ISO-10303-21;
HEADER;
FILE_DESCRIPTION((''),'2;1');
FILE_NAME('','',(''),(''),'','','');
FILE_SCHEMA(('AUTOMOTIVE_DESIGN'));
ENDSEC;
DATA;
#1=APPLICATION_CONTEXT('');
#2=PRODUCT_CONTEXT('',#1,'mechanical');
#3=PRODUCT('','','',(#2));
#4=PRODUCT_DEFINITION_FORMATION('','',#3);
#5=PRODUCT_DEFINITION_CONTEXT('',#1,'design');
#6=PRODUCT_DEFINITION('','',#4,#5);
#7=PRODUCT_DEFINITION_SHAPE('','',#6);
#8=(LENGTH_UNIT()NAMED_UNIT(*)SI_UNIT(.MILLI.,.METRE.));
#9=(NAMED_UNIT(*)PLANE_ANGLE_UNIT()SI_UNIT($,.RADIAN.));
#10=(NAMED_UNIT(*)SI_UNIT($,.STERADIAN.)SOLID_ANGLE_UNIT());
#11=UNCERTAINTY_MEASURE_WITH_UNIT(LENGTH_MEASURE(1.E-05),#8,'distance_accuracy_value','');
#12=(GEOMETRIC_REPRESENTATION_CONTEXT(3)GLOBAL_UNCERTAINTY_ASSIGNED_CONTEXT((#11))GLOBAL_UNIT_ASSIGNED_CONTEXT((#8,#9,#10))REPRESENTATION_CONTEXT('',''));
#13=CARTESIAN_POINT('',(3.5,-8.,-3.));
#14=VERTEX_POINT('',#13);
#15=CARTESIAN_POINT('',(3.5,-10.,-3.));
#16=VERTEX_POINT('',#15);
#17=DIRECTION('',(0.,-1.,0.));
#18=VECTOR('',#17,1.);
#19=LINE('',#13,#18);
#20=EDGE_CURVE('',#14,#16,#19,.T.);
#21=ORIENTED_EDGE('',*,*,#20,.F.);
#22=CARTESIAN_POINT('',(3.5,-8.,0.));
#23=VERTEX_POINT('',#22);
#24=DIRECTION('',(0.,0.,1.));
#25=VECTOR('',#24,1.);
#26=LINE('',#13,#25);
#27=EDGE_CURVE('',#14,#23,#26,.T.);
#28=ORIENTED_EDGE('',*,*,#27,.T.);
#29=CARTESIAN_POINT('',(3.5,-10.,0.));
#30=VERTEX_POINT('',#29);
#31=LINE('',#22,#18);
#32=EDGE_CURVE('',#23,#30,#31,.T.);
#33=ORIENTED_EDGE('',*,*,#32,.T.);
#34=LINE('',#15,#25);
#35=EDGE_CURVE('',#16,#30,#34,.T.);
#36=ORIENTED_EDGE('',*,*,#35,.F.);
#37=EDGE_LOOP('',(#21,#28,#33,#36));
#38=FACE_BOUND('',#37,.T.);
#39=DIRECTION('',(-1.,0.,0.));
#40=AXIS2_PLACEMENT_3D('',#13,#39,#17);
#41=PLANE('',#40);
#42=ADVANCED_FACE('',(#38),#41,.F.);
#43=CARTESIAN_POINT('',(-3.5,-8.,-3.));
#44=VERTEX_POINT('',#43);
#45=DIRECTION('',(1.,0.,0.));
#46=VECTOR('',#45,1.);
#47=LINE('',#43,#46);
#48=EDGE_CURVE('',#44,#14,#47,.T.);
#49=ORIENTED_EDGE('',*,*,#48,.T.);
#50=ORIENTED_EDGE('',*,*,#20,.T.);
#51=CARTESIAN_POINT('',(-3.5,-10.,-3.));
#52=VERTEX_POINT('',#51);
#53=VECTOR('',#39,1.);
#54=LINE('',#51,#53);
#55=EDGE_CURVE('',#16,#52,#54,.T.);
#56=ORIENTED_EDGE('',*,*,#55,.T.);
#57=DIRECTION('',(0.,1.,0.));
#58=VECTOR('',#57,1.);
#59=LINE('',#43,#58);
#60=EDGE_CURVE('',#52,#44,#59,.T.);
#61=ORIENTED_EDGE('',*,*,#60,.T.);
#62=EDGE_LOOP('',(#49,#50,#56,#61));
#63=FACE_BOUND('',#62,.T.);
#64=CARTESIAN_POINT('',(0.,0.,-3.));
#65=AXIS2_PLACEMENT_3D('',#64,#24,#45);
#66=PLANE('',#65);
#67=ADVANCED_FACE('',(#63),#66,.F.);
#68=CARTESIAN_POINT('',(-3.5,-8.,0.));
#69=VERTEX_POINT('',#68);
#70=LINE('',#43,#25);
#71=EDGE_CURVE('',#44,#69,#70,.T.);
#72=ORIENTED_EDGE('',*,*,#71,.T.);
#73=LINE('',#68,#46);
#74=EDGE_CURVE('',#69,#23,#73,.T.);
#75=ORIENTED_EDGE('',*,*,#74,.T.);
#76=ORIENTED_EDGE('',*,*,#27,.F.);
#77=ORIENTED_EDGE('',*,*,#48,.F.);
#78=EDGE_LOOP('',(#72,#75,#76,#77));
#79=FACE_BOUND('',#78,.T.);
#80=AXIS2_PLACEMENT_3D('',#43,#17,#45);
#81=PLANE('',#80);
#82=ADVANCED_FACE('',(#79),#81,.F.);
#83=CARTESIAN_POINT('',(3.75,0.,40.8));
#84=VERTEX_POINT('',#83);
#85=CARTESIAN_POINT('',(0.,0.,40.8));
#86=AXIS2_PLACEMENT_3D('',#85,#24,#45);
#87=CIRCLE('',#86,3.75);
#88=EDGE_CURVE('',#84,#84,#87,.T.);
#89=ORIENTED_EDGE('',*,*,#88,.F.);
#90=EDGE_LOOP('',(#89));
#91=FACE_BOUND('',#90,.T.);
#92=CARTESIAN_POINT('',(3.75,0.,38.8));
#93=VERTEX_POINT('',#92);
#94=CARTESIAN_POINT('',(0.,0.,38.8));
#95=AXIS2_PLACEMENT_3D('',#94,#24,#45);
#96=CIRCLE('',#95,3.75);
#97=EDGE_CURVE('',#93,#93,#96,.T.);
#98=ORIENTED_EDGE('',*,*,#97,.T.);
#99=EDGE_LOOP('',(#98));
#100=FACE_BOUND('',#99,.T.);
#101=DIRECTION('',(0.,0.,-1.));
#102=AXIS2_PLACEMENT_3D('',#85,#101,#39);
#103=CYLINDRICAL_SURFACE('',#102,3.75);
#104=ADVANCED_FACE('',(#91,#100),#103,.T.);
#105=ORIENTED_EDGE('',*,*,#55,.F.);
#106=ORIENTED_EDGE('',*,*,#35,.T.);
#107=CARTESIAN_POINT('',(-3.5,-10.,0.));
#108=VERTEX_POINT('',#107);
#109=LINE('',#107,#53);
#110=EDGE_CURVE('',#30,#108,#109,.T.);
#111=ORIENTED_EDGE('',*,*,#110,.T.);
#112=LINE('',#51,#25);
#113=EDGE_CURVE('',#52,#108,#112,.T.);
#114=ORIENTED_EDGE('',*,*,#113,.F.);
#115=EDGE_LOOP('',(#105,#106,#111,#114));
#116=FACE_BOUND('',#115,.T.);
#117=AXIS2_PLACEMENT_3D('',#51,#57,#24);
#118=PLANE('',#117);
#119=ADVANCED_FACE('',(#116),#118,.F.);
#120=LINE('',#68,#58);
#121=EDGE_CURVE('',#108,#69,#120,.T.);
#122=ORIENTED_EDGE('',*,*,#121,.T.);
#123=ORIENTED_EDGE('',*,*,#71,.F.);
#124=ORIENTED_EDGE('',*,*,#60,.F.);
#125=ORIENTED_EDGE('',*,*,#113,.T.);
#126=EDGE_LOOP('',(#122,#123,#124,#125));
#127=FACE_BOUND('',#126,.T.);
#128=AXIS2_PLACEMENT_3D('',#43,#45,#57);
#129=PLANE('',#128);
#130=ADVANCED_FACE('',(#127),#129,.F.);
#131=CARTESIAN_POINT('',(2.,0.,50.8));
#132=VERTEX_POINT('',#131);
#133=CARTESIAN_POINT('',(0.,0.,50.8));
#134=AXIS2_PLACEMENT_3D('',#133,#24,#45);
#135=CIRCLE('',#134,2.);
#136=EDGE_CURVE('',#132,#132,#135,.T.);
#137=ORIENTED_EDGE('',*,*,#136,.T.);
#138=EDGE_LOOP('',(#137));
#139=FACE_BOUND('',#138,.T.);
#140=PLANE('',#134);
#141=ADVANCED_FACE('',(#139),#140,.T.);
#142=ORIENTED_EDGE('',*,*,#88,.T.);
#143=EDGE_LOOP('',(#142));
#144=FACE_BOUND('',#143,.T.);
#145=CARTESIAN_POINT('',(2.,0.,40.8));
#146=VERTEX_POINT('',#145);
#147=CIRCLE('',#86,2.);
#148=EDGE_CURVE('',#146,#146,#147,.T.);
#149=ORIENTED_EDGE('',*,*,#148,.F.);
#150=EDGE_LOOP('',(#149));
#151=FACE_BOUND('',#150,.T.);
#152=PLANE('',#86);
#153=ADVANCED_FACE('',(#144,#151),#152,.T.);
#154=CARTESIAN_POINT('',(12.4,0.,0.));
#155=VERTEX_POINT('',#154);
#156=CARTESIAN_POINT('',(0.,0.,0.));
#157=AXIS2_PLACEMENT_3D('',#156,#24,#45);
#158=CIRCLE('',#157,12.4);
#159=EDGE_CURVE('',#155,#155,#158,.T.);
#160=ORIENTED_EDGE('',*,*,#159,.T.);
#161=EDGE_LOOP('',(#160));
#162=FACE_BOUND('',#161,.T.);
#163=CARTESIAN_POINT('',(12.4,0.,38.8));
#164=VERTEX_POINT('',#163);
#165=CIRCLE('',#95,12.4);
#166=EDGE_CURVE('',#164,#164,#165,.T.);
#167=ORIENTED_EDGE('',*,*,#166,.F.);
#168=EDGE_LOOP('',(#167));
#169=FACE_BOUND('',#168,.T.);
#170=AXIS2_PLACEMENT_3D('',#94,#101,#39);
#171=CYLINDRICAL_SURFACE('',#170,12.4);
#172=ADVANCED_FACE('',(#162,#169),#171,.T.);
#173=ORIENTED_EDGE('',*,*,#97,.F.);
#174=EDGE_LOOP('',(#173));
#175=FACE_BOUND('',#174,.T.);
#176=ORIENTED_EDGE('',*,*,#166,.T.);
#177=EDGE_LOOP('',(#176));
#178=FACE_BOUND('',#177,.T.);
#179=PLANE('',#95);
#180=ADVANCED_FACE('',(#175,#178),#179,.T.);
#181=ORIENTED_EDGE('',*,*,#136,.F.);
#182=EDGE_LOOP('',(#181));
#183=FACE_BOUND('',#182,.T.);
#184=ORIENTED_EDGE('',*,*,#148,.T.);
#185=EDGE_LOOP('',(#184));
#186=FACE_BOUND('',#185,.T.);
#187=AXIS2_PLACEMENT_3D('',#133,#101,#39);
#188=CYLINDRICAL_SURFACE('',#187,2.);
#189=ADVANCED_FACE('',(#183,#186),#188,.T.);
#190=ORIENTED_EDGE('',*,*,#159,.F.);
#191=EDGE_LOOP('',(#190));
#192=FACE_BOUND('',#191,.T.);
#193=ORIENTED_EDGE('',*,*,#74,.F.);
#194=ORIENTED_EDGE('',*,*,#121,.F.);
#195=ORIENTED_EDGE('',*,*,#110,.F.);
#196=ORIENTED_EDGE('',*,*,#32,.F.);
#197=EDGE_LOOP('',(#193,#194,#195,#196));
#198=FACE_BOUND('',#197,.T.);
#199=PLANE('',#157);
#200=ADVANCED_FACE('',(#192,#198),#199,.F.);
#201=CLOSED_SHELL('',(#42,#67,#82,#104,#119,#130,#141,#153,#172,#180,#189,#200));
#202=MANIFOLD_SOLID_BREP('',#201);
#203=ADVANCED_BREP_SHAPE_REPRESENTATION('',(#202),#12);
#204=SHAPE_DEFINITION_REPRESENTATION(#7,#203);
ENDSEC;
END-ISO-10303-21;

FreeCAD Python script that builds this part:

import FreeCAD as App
import Part
import Sketcher
from FreeCAD import Vector
Q = App.Units.Quantity


def add_polygon(sketch, points):
    """Adds a closed chain of lines whose ends are joined by coincident constraints."""
    first, n = sketch.GeometryCount, len(points)
    for a, b in zip(points, points[1:] + points[:1]):
        sketch.addGeometry(Part.LineSegment(App.Vector(*a, 0), App.Vector(*b, 0)), False)
    for i in range(n):
        sketch.addConstraint(Sketcher.Constraint("Coincident", first + i, 2, first + (i + 1) % n, 1))

doc = App.newDocument("Part")
body = doc.addObject("PartDesign::Body", "Body")

# Sketch on XY plane
sketch1 = body.newObject("Sketcher::SketchObject", "Sketch")
sketch1.AttachmentSupport = (doc.getObject("XY_Plane"), [""])
sketch1.MapMode = "FlatFace"
sketch1.addGeometry(Part.Circle(Vector(0, 0, 0), Vector(0, 0, 1), 12.4), False)
sketch1.addConstraint([
    Sketcher.Constraint("Coincident", 0, 3, -1, 1),
    Sketcher.Constraint("Diameter", 0, Q("24.8 mm")),
])
pad1 = body.newObject("PartDesign::Pad", "Pad")
pad1.Profile = sketch1
pad1.Length = 38.8

# Sketch on XY plane
sketch2 = body.newObject("Sketcher::SketchObject", "Sketch001")
sketch2.AttachmentSupport = (doc.getObject("XY_Plane"), [""])
sketch2.MapMode = "FlatFace"
sketch2.AttachmentOffset = App.Placement(Vector(0, 0, 38.8), App.Rotation())
sketch2.addGeometry(Part.Circle(Vector(0, 0, 0), Vector(0, 0, 1), 3.75), False)
sketch2.addConstraint([
    Sketcher.Constraint("Coincident", 0, 3, -1, 1),
    Sketcher.Constraint("Diameter", 0, Q("7.5 mm")),
])
pad2 = body.newObject("PartDesign::Pad", "Pad001")
pad2.Profile = sketch2
pad2.Length = 2

# Sketch on XY plane
sketch3 = body.newObject("Sketcher::SketchObject", "Sketch002")
sketch3.AttachmentSupport = (doc.getObject("XY_Plane"), [""])
sketch3.MapMode = "FlatFace"
sketch3.AttachmentOffset = App.Placement(Vector(0, 0, 40.8), App.Rotation())
sketch3.addGeometry(Part.Circle(Vector(0, 0, 0), Vector(0, 0, 1), 2), False)
sketch3.addConstraint([
    Sketcher.Constraint("Coincident", 0, 3, -1, 1),
    Sketcher.Constraint("Diameter", 0, Q("4 mm")),
])
pad3 = body.newObject("PartDesign::Pad", "Pad002")
pad3.Profile = sketch3
pad3.Length = 10

# Sketch on XY plane
sketch4 = body.newObject("Sketcher::SketchObject", "Sketch003")
sketch4.AttachmentSupport = (doc.getObject("XY_Plane"), [""])
sketch4.MapMode = "FlatFace"
add_polygon(sketch4, [(3.5, -8), (3.5, -10), (-3.5, -10), (-3.5, -8)])  # lines 0-3
sketch4.addConstraint([
    Sketcher.Constraint("Vertical", 0),
    Sketcher.Constraint("Horizontal", 1),
    Sketcher.Constraint("Vertical", 2),
    Sketcher.Constraint("Horizontal", 3),
    Sketcher.Constraint("DistanceX", 1, 2, 1, 1, Q("7 mm")),
    Sketcher.Constraint("DistanceY", 0, 2, 0, 1, Q("2 mm")),
    Sketcher.Constraint("DistanceY", 0, 2, -1, 1, Q("10 mm")),
    Sketcher.Constraint("DistanceX", -1, 1, 0, 2, Q("3.5 mm")),
])
pad4 = body.newObject("PartDesign::Pad", "Pad003")
pad4.Profile = sketch4
pad4.Length = 3
pad4.Reversed = True

doc.recompute()
